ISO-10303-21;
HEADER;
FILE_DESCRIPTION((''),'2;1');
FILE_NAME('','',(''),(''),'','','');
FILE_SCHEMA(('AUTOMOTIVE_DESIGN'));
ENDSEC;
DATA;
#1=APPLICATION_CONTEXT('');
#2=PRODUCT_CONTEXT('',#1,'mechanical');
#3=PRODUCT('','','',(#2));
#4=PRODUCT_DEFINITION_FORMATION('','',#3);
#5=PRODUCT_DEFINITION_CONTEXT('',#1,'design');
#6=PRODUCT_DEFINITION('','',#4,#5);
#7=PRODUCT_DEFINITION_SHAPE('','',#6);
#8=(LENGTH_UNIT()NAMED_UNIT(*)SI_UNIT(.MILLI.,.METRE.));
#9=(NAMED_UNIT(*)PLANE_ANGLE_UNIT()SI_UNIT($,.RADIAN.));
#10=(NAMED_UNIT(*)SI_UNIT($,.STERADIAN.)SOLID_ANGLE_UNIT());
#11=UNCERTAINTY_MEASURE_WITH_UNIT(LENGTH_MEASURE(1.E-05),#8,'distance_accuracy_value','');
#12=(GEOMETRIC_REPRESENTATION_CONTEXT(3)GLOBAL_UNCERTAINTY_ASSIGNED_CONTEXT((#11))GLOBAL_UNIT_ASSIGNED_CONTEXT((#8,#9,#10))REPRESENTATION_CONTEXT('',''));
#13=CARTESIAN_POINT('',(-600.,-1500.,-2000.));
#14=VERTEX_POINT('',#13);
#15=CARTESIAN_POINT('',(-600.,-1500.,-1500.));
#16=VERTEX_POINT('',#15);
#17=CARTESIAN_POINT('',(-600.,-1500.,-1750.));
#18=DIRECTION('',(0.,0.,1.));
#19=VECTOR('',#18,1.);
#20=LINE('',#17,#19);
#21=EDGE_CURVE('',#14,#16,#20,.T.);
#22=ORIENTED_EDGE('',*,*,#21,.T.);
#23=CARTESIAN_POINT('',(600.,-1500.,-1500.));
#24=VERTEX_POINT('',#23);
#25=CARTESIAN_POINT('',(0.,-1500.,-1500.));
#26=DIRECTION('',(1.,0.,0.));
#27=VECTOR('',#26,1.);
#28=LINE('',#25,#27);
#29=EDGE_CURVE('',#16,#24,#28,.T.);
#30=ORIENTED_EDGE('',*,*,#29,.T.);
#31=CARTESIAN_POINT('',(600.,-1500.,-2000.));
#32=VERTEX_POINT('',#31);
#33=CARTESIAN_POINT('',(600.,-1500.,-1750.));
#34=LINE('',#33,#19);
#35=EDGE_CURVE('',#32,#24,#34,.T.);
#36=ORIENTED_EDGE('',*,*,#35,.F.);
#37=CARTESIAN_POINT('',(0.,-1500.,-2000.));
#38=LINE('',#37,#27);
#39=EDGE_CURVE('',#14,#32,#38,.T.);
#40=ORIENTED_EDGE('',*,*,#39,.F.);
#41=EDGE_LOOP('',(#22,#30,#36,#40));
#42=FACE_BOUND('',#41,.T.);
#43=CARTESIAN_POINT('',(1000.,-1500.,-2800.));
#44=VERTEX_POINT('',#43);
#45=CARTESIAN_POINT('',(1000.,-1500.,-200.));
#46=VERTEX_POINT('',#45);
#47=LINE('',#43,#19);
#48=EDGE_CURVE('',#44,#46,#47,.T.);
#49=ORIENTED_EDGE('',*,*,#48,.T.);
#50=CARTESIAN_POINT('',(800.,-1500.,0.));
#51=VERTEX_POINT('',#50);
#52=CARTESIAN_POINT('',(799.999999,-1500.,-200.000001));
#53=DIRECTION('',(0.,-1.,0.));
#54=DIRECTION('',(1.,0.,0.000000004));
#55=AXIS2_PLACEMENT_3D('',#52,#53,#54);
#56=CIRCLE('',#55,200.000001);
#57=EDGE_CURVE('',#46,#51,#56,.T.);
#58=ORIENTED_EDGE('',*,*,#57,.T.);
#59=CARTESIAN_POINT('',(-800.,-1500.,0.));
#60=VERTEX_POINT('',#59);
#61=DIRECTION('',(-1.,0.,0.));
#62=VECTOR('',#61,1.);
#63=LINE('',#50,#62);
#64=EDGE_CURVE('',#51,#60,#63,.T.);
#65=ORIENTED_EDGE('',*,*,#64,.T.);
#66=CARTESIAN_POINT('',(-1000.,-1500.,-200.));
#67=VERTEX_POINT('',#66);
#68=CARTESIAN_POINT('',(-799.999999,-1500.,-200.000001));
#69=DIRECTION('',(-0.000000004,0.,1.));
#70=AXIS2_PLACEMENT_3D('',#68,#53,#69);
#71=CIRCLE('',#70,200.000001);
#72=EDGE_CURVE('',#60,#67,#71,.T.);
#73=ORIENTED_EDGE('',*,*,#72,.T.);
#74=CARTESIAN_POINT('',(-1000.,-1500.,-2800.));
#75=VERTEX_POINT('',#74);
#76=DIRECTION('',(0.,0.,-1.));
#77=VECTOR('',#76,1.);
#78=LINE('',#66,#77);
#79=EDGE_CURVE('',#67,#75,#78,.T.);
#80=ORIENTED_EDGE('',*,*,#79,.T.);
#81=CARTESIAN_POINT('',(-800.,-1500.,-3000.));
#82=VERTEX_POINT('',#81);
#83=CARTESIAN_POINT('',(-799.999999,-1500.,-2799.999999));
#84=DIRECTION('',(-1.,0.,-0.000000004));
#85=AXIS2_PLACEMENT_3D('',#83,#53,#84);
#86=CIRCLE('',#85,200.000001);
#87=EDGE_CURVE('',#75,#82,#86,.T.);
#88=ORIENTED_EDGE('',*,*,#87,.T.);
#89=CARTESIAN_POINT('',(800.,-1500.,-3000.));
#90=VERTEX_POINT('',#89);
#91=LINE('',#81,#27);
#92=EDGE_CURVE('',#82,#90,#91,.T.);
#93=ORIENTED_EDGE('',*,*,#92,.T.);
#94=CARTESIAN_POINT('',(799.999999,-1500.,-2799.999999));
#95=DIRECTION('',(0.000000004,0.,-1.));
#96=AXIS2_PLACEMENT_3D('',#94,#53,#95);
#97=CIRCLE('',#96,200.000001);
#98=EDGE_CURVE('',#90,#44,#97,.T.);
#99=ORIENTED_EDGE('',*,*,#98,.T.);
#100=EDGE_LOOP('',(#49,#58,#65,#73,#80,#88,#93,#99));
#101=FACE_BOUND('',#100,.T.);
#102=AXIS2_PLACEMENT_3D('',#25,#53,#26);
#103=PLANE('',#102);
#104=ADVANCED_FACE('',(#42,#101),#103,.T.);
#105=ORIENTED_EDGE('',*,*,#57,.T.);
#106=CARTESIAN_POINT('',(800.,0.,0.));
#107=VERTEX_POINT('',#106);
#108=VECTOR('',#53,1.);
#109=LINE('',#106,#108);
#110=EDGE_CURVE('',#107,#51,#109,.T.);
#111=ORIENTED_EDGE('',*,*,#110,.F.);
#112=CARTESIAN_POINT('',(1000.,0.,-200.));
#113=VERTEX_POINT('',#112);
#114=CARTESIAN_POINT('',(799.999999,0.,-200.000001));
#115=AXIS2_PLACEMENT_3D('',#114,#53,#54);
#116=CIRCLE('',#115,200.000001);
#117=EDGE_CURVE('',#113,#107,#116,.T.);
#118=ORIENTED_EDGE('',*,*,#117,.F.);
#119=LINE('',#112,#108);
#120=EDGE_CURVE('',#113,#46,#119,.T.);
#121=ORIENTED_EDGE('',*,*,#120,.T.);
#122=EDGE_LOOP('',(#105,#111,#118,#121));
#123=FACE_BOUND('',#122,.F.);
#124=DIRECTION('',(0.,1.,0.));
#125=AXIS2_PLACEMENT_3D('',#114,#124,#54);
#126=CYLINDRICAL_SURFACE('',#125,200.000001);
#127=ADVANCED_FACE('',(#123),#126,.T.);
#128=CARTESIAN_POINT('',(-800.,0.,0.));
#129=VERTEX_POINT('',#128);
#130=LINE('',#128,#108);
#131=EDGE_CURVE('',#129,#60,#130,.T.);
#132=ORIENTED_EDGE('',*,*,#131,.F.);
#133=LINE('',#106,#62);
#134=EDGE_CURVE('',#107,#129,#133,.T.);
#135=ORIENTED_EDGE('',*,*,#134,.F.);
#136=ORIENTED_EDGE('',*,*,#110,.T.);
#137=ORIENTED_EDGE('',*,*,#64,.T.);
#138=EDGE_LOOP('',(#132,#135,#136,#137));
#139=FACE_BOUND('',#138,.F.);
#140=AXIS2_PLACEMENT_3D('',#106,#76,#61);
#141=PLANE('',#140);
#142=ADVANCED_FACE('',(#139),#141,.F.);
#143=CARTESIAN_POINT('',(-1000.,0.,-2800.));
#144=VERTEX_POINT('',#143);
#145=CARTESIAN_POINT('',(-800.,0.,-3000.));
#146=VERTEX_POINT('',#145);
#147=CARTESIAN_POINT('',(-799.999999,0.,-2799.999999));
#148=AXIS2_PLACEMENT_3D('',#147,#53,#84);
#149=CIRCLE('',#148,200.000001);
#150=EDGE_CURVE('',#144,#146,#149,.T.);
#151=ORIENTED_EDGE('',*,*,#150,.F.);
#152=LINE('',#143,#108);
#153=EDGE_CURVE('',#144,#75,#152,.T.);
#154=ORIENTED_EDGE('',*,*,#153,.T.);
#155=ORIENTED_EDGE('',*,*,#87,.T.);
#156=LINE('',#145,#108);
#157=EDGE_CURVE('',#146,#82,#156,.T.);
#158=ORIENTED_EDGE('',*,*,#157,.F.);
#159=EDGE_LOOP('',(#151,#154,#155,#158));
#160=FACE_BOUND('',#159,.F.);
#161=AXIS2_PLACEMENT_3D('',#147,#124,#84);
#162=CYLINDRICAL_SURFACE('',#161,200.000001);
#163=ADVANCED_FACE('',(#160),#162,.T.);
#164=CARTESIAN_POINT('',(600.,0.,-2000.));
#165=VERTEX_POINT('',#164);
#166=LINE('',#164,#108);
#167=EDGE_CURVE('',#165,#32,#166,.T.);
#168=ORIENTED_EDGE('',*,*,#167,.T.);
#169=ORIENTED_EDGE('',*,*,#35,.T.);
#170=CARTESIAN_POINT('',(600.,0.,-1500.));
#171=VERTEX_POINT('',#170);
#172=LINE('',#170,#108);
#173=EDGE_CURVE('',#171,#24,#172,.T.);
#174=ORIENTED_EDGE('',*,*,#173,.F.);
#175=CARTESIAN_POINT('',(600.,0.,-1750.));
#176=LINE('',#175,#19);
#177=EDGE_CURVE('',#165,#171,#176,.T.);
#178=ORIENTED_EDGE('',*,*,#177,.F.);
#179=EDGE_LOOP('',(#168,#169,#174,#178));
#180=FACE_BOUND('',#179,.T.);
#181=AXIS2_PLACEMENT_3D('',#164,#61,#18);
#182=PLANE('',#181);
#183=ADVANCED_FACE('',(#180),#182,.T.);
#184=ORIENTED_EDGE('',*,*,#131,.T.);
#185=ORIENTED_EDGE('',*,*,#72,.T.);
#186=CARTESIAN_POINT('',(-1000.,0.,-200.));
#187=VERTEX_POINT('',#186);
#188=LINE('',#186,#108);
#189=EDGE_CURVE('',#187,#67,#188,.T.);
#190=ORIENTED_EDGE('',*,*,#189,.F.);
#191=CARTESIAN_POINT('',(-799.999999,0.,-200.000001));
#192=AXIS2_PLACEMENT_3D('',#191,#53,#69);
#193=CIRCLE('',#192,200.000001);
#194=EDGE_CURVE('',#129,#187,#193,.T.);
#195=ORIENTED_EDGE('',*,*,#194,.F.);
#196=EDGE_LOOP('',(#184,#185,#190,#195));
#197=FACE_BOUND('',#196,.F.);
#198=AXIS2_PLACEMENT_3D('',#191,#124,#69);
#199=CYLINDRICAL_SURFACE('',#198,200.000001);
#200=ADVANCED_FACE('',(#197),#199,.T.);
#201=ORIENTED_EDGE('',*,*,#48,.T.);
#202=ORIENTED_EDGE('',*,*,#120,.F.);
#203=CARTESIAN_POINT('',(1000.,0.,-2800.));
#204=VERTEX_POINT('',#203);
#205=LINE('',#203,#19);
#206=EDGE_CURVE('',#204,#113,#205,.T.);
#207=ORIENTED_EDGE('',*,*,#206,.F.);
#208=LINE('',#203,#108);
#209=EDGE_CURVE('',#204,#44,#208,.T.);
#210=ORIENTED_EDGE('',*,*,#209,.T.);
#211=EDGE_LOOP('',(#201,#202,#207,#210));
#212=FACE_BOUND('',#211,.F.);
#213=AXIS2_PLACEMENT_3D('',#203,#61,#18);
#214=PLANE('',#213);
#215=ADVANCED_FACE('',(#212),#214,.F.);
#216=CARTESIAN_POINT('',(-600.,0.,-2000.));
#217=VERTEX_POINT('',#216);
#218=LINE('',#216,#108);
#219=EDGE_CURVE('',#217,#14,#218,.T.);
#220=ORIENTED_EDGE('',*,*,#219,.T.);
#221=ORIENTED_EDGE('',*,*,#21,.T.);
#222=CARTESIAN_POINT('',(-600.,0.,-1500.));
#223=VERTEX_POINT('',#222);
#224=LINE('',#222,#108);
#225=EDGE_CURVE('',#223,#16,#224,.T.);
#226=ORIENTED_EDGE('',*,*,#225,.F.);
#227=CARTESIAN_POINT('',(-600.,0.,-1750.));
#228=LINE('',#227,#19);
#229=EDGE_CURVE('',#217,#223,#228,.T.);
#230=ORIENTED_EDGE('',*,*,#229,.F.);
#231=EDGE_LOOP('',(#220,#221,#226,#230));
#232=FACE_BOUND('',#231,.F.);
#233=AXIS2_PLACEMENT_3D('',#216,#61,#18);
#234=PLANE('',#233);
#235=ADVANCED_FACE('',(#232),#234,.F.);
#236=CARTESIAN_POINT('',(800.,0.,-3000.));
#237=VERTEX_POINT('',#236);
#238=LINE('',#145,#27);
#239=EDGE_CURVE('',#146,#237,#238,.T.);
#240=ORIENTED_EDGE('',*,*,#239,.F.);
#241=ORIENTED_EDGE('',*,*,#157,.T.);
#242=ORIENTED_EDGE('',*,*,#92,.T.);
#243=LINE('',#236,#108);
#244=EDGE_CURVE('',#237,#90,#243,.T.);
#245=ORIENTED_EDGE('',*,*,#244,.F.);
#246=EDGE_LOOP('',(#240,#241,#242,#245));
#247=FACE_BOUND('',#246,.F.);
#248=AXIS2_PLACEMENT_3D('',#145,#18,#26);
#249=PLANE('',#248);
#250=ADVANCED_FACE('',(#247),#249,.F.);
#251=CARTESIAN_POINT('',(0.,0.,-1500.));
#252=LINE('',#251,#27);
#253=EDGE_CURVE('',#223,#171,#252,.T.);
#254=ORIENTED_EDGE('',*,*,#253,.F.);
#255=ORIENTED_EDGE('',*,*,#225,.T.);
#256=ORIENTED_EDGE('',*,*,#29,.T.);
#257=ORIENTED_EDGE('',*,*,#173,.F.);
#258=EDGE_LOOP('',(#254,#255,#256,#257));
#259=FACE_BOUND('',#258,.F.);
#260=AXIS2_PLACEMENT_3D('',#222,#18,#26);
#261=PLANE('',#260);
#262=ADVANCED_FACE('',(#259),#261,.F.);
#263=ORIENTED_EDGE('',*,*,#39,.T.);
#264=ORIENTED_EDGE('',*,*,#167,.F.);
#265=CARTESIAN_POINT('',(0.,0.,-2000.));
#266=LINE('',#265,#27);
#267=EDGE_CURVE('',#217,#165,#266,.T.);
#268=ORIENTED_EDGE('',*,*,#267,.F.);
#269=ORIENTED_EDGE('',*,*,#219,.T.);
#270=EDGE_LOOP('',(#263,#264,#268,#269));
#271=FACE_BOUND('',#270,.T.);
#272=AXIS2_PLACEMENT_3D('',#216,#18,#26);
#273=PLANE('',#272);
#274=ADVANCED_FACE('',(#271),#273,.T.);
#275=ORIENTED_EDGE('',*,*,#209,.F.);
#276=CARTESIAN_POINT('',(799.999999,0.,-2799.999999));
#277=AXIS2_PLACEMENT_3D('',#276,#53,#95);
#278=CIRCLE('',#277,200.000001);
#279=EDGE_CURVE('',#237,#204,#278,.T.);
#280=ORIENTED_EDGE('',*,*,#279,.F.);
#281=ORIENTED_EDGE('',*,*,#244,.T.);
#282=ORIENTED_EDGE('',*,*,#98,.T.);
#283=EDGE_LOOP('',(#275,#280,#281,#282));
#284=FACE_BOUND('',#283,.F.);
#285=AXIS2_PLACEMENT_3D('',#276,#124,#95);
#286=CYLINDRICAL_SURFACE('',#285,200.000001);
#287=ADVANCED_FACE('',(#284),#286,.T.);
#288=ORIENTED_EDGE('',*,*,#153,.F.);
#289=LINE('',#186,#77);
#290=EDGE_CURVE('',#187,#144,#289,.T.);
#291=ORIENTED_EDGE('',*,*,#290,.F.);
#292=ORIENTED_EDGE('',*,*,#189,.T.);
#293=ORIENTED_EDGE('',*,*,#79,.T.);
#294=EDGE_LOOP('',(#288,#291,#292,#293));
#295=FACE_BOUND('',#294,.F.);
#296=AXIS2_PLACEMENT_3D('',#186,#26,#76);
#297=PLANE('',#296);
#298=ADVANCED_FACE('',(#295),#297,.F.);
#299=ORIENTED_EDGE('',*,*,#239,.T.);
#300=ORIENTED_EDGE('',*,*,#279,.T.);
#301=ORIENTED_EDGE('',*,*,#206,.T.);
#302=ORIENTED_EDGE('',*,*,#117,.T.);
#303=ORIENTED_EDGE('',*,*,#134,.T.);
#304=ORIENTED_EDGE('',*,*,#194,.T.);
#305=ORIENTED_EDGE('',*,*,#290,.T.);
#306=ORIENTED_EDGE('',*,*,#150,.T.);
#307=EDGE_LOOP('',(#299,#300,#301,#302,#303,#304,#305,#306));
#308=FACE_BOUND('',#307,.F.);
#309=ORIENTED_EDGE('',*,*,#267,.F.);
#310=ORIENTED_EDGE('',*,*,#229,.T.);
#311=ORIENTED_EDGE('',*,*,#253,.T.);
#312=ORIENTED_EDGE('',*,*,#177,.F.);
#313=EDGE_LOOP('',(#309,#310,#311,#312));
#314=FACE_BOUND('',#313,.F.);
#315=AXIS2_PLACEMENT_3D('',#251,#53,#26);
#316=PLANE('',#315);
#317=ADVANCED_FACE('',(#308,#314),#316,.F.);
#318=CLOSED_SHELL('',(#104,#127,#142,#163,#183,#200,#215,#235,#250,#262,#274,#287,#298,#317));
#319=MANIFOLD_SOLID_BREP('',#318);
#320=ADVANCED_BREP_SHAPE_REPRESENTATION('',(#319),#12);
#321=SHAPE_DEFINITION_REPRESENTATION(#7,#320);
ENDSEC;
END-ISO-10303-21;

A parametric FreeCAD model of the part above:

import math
import FreeCAD as App
import Part
import Sketcher
from FreeCAD import Vector


def add_polygon(sketch, points):
    """Adds a closed chain of lines whose ends are joined by coincident constraints."""
    first, n = sketch.GeometryCount, len(points)
    for a, b in zip(points, points[1:] + points[:1]):
        sketch.addGeometry(Part.LineSegment(App.Vector(*a, 0), App.Vector(*b, 0)), False)
    for i in range(n):
        sketch.addConstraint(Sketcher.Constraint("Coincident", first + i, 2, first + (i + 1) % n, 1))

doc = App.newDocument("Part")
body = doc.addObject("PartDesign::Body", "Body")

sketch1 = body.newObject("Sketcher::SketchObject", "Sketch")
sketch1.AttachmentSupport = (doc.getObject("XZ_Plane"), [""])
sketch1.MapMode = "FlatFace"
sketch1.addGeometry(Part.LineSegment(Vector(800, 0, 0), Vector(-800, 0, 0)), False)
sketch1.addGeometry(Part.ArcOfCircle(Part.Circle(Vector(-799.999999, -200.000001, 0), Vector(0, 0, 1), 200.000001), math.radians(90), math.radians(180)), False)
sketch1.addGeometry(Part.LineSegment(Vector(-1000, -200, 0), Vector(-1000, -2800, 0)), False)
sketch1.addGeometry(Part.ArcOfCircle(Part.Circle(Vector(-799.999999, -2799.999999, 0), Vector(0, 0, 1), 200.000001), math.radians(-180), math.radians(-90)), False)
sketch1.addGeometry(Part.LineSegment(Vector(-800, -3000, 0), Vector(800, -3000, 0)), False)
sketch1.addGeometry(Part.ArcOfCircle(Part.Circle(Vector(799.999999, -2799.999999, 0), Vector(0, 0, 1), 200.000001), math.radians(-90), math.radians(0)), False)
sketch1.addGeometry(Part.LineSegment(Vector(1000, -2800, 0), Vector(1000, -200, 0)), False)
sketch1.addGeometry(Part.ArcOfCircle(Part.Circle(Vector(799.999999, -200.000001, 0), Vector(0, 0, 1), 200.000001), math.radians(0), math.radians(90)), False)
add_polygon(sketch1, [(600, -2000), (-600, -2000), (-600, -1500), (600, -1500)])
sketch1.addConstraint([
    Sketcher.Constraint("Tangent", 0, 2, 1, 1),
    Sketcher.Constraint("Tangent", 1, 2, 2, 1),
    Sketcher.Constraint("Tangent", 2, 2, 3, 1),
    Sketcher.Constraint("Tangent", 3, 2, 4, 1),
    Sketcher.Constraint("Tangent", 4, 2, 5, 1),
    Sketcher.Constraint("Tangent", 5, 2, 6, 1),
    Sketcher.Constraint("Tangent", 6, 2, 7, 1),
    Sketcher.Constraint("Tangent", 7, 2, 0, 1),
    Sketcher.Constraint("Horizontal", 0),
    Sketcher.Constraint("Vertical", 2),
    Sketcher.Constraint("Horizontal", 4),
    Sketcher.Constraint("Vertical", 6),
    Sketcher.Constraint("Horizontal", 8),
    Sketcher.Constraint("Vertical", 9),
    Sketcher.Constraint("Horizontal", 10),
    Sketcher.Constraint("Vertical", 11),
    Sketcher.Constraint("Equal", 1, 3),
    Sketcher.Constraint("Equal", 3, 5),
    Sketcher.Constraint("Equal", 5, 7),
    Sketcher.Constraint("Symmetric", 0, 2, 7, 2, -1, 1),
    Sketcher.Constraint("Radius", 1, 200.000001),
    Sketcher.Constraint("DistanceX", 0, 2, 0, 1, 1600.0),
    Sketcher.Constraint("DistanceX", 8, 2, 8, 1, 1200.0),
    Sketcher.Constraint("DistanceY", 2, 2, 2, 1, 2600.0),
    Sketcher.Constraint("DistanceY", 9, 1, 9, 2, 500.0),
    Sketcher.Constraint("DistanceX", 8, 2, -1, 1, 600.0),
    Sketcher.Constraint("DistanceY", 8, 2, -1, 1, 2000.0),
])
pad1 = body.newObject("PartDesign::Pad", "Pad")
pad1.Profile = sketch1
pad1.Length = 1500

doc.recompute()
